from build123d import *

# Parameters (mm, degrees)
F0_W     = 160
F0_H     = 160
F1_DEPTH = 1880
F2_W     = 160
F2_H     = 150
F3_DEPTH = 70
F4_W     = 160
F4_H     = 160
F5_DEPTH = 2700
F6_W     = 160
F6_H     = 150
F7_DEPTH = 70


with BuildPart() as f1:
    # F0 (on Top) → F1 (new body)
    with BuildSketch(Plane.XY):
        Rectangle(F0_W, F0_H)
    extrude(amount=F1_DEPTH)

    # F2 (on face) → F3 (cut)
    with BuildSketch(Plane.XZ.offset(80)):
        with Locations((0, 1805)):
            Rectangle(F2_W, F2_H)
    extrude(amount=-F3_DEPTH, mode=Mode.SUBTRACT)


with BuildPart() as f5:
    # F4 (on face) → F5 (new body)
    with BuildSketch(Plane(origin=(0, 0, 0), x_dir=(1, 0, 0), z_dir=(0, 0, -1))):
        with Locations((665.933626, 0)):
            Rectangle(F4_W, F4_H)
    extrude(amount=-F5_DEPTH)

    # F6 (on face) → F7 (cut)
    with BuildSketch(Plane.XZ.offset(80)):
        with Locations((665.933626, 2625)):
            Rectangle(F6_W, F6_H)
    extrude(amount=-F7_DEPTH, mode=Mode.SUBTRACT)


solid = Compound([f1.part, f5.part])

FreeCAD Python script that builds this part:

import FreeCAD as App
import Part
import Sketcher

V = App.Vector
Q = App.Units.Quantity

doc = App.newDocument("Part")
body = doc.addObject("PartDesign::Body", "Body")

# Sketch on XY plane
sketch1 = doc.addObject("Sketcher::SketchObject", "Sketch")
body.addObject(sketch1)
sketch1.AttachmentSupport = (doc.XY_Plane, [""])
sketch1.MapMode = "FlatFace"
sketch1.addGeometry(Part.LineSegment(V(-80, 80, 0), V(-80, -80, 0)), False)
sketch1.addGeometry(Part.LineSegment(V(-80, -80, 0), V(80, -80, 0)), False)
sketch1.addGeometry(Part.LineSegment(V(80, -80, 0), V(80, 80, 0)), False)
sketch1.addGeometry(Part.LineSegment(V(80, 80, 0), V(-80, 80, 0)), False)
sketch1.addConstraint(Sketcher.Constraint("Coincident", 0, 2, 1, 1))
sketch1.addConstraint(Sketcher.Constraint("Coincident", 1, 2, 2, 1))
sketch1.addConstraint(Sketcher.Constraint("Coincident", 2, 2, 3, 1))
sketch1.addConstraint(Sketcher.Constraint("Coincident", 3, 2, 0, 1))
sketch1.addConstraint(Sketcher.Constraint("Vertical", 0))
sketch1.addConstraint(Sketcher.Constraint("Horizontal", 1))
sketch1.addConstraint(Sketcher.Constraint("Vertical", 2))
sketch1.addConstraint(Sketcher.Constraint("Horizontal", 3))
sketch1.addConstraint(Sketcher.Constraint("Symmetric", 0, 2, 2, 2, -1, 1))
sketch1.addConstraint(Sketcher.Constraint("Equal", 3, 0))
sketch1.addConstraint(Sketcher.Constraint("DistanceX", 1, 1, 1, 2, Q("160 mm")))
pad1 = doc.addObject("PartDesign::Pad", "Pad")
body.addObject(pad1)
pad1.Profile = sketch1
pad1.Length = 1880

# Sketch on XZ plane
sketch2 = doc.addObject("Sketcher::SketchObject", "Sketch001")
body.addObject(sketch2)
sketch2.AttachmentSupport = (doc.XZ_Plane, [""])
sketch2.MapMode = "FlatFace"
sketch2.AttachmentOffset = App.Placement(V(0, 0, 80), App.Rotation())
sketch2.addGeometry(Part.LineSegment(V(-80, 1880, 0), V(-80, 1730, 0)), False)
sketch2.addGeometry(Part.LineSegment(V(-80, 1730, 0), V(80, 1730, 0)), False)
sketch2.addGeometry(Part.LineSegment(V(80, 1730, 0), V(80, 1880, 0)), False)
sketch2.addGeometry(Part.LineSegment(V(80, 1880, 0), V(-80, 1880, 0)), False)
sketch2.addConstraint(Sketcher.Constraint("Coincident", 0, 2, 1, 1))
sketch2.addConstraint(Sketcher.Constraint("Coincident", 1, 2, 2, 1))
sketch2.addConstraint(Sketcher.Constraint("Coincident", 2, 2, 3, 1))
sketch2.addConstraint(Sketcher.Constraint("Coincident", 3, 2, 0, 1))
sketch2.addConstraint(Sketcher.Constraint("Vertical", 0))
sketch2.addConstraint(Sketcher.Constraint("Horizontal", 1))
sketch2.addConstraint(Sketcher.Constraint("Vertical", 2))
sketch2.addConstraint(Sketcher.Constraint("Horizontal", 3))
sketch2.addConstraint(Sketcher.Constraint("DistanceX", 1, 1, 1, 2, Q("160 mm")))
sketch2.addConstraint(Sketcher.Constraint("DistanceY", 0, 2, 0, 1, Q("150 mm")))
sketch2.addConstraint(Sketcher.Constraint("DistanceX", 0, 2, -1, 1, Q("80 mm")))
sketch2.addConstraint(Sketcher.Constraint("DistanceY", -1, 1, 0, 2, Q("1730 mm")))
pocket1 = doc.addObject("PartDesign::Pocket", "Pocket")
body.addObject(pocket1)
pocket1.Profile = sketch2
pocket1.Length = 70
body2 = doc.addObject("PartDesign::Body", "Body001")

# Sketch on XY plane
sketch3 = doc.addObject("Sketcher::SketchObject", "Sketch002")
body2.addObject(sketch3)
sketch3.AttachmentSupport = (doc.getObject("XY_Plane001"), [""])
sketch3.MapMode = "FlatFace"
sketch3.addGeometry(Part.LineSegment(V(585.933626, -80, 0), V(585.933626, 80, 0)), False)
sketch3.addGeometry(Part.LineSegment(V(585.933626, 80, 0), V(745.933626, 80, 0)), False)
sketch3.addGeometry(Part.LineSegment(V(745.933626, 80, 0), V(745.933626, -80, 0)), False)
sketch3.addGeometry(Part.LineSegment(V(745.933626, -80, 0), V(585.933626, -80, 0)), False)
sketch3.addConstraint(Sketcher.Constraint("Coincident", 0, 2, 1, 1))
sketch3.addConstraint(Sketcher.Constraint("Coincident", 1, 2, 2, 1))
sketch3.addConstraint(Sketcher.Constraint("Coincident", 2, 2, 3, 1))
sketch3.addConstraint(Sketcher.Constraint("Coincident", 3, 2, 0, 1))
sketch3.addConstraint(Sketcher.Constraint("Vertical", 0))
sketch3.addConstraint(Sketcher.Constraint("Horizontal", 1))
sketch3.addConstraint(Sketcher.Constraint("Vertical", 2))
sketch3.addConstraint(Sketcher.Constraint("Horizontal", 3))
sketch3.addConstraint(Sketcher.Constraint("Equal", 3, 0))
sketch3.addConstraint(Sketcher.Constraint("DistanceX", 1, 1, 1, 2, Q("160 mm")))
sketch3.addConstraint(Sketcher.Constraint("DistanceY", -1, 1, 0, 2, Q("80 mm")))
sketch3.addConstraint(Sketcher.Constraint("DistanceX", -1, 1, 0, 2, Q("585.933626 mm")))
pad2 = doc.addObject("PartDesign::Pad", "Pad001")
body2.addObject(pad2)
pad2.Profile = sketch3
pad2.Length = 2700

# Sketch on XZ plane
sketch4 = doc.addObject("Sketcher::SketchObject", "Sketch003")
body2.addObject(sketch4)
sketch4.AttachmentSupport = (doc.getObject("XZ_Plane001"), [""])
sketch4.MapMode = "FlatFace"
sketch4.AttachmentOffset = App.Placement(V(0, 0, 80), App.Rotation())
sketch4.addGeometry(Part.LineSegment(V(585.933626, 2700, 0), V(585.933626, 2550, 0)), False)
sketch4.addGeometry(Part.LineSegment(V(585.933626, 2550, 0), V(745.933626, 2550, 0)), False)
sketch4.addGeometry(Part.LineSegment(V(745.933626, 2550, 0), V(745.933626, 2700, 0)), False)
sketch4.addGeometry(Part.LineSegment(V(745.933626, 2700, 0), V(585.933626, 2700, 0)), False)
sketch4.addConstraint(Sketcher.Constraint("Coincident", 0, 2, 1, 1))
sketch4.addConstraint(Sketcher.Constraint("Coincident", 1, 2, 2, 1))
sketch4.addConstraint(Sketcher.Constraint("Coincident", 2, 2, 3, 1))
sketch4.addConstraint(Sketcher.Constraint("Coincident", 3, 2, 0, 1))
sketch4.addConstraint(Sketcher.Constraint("Vertical", 0))
sketch4.addConstraint(Sketcher.Constraint("Horizontal", 1))
sketch4.addConstraint(Sketcher.Constraint("Vertical", 2))
sketch4.addConstraint(Sketcher.Constraint("Horizontal", 3))
sketch4.addConstraint(Sketcher.Constraint("DistanceX", 1, 1, 1, 2, Q("160 mm")))
sketch4.addConstraint(Sketcher.Constraint("DistanceY", 0, 2, 0, 1, Q("150 mm")))
sketch4.addConstraint(Sketcher.Constraint("DistanceY", -1, 1, 0, 2, Q("2550 mm")))
sketch4.addConstraint(Sketcher.Constraint("DistanceX", -1, 1, 0, 2, Q("585.933626 mm")))
pocket2 = doc.addObject("PartDesign::Pocket", "Pocket001")
body2.addObject(pocket2)
pocket2.Profile = sketch4
pocket2.Length = 70

doc.recompute()
